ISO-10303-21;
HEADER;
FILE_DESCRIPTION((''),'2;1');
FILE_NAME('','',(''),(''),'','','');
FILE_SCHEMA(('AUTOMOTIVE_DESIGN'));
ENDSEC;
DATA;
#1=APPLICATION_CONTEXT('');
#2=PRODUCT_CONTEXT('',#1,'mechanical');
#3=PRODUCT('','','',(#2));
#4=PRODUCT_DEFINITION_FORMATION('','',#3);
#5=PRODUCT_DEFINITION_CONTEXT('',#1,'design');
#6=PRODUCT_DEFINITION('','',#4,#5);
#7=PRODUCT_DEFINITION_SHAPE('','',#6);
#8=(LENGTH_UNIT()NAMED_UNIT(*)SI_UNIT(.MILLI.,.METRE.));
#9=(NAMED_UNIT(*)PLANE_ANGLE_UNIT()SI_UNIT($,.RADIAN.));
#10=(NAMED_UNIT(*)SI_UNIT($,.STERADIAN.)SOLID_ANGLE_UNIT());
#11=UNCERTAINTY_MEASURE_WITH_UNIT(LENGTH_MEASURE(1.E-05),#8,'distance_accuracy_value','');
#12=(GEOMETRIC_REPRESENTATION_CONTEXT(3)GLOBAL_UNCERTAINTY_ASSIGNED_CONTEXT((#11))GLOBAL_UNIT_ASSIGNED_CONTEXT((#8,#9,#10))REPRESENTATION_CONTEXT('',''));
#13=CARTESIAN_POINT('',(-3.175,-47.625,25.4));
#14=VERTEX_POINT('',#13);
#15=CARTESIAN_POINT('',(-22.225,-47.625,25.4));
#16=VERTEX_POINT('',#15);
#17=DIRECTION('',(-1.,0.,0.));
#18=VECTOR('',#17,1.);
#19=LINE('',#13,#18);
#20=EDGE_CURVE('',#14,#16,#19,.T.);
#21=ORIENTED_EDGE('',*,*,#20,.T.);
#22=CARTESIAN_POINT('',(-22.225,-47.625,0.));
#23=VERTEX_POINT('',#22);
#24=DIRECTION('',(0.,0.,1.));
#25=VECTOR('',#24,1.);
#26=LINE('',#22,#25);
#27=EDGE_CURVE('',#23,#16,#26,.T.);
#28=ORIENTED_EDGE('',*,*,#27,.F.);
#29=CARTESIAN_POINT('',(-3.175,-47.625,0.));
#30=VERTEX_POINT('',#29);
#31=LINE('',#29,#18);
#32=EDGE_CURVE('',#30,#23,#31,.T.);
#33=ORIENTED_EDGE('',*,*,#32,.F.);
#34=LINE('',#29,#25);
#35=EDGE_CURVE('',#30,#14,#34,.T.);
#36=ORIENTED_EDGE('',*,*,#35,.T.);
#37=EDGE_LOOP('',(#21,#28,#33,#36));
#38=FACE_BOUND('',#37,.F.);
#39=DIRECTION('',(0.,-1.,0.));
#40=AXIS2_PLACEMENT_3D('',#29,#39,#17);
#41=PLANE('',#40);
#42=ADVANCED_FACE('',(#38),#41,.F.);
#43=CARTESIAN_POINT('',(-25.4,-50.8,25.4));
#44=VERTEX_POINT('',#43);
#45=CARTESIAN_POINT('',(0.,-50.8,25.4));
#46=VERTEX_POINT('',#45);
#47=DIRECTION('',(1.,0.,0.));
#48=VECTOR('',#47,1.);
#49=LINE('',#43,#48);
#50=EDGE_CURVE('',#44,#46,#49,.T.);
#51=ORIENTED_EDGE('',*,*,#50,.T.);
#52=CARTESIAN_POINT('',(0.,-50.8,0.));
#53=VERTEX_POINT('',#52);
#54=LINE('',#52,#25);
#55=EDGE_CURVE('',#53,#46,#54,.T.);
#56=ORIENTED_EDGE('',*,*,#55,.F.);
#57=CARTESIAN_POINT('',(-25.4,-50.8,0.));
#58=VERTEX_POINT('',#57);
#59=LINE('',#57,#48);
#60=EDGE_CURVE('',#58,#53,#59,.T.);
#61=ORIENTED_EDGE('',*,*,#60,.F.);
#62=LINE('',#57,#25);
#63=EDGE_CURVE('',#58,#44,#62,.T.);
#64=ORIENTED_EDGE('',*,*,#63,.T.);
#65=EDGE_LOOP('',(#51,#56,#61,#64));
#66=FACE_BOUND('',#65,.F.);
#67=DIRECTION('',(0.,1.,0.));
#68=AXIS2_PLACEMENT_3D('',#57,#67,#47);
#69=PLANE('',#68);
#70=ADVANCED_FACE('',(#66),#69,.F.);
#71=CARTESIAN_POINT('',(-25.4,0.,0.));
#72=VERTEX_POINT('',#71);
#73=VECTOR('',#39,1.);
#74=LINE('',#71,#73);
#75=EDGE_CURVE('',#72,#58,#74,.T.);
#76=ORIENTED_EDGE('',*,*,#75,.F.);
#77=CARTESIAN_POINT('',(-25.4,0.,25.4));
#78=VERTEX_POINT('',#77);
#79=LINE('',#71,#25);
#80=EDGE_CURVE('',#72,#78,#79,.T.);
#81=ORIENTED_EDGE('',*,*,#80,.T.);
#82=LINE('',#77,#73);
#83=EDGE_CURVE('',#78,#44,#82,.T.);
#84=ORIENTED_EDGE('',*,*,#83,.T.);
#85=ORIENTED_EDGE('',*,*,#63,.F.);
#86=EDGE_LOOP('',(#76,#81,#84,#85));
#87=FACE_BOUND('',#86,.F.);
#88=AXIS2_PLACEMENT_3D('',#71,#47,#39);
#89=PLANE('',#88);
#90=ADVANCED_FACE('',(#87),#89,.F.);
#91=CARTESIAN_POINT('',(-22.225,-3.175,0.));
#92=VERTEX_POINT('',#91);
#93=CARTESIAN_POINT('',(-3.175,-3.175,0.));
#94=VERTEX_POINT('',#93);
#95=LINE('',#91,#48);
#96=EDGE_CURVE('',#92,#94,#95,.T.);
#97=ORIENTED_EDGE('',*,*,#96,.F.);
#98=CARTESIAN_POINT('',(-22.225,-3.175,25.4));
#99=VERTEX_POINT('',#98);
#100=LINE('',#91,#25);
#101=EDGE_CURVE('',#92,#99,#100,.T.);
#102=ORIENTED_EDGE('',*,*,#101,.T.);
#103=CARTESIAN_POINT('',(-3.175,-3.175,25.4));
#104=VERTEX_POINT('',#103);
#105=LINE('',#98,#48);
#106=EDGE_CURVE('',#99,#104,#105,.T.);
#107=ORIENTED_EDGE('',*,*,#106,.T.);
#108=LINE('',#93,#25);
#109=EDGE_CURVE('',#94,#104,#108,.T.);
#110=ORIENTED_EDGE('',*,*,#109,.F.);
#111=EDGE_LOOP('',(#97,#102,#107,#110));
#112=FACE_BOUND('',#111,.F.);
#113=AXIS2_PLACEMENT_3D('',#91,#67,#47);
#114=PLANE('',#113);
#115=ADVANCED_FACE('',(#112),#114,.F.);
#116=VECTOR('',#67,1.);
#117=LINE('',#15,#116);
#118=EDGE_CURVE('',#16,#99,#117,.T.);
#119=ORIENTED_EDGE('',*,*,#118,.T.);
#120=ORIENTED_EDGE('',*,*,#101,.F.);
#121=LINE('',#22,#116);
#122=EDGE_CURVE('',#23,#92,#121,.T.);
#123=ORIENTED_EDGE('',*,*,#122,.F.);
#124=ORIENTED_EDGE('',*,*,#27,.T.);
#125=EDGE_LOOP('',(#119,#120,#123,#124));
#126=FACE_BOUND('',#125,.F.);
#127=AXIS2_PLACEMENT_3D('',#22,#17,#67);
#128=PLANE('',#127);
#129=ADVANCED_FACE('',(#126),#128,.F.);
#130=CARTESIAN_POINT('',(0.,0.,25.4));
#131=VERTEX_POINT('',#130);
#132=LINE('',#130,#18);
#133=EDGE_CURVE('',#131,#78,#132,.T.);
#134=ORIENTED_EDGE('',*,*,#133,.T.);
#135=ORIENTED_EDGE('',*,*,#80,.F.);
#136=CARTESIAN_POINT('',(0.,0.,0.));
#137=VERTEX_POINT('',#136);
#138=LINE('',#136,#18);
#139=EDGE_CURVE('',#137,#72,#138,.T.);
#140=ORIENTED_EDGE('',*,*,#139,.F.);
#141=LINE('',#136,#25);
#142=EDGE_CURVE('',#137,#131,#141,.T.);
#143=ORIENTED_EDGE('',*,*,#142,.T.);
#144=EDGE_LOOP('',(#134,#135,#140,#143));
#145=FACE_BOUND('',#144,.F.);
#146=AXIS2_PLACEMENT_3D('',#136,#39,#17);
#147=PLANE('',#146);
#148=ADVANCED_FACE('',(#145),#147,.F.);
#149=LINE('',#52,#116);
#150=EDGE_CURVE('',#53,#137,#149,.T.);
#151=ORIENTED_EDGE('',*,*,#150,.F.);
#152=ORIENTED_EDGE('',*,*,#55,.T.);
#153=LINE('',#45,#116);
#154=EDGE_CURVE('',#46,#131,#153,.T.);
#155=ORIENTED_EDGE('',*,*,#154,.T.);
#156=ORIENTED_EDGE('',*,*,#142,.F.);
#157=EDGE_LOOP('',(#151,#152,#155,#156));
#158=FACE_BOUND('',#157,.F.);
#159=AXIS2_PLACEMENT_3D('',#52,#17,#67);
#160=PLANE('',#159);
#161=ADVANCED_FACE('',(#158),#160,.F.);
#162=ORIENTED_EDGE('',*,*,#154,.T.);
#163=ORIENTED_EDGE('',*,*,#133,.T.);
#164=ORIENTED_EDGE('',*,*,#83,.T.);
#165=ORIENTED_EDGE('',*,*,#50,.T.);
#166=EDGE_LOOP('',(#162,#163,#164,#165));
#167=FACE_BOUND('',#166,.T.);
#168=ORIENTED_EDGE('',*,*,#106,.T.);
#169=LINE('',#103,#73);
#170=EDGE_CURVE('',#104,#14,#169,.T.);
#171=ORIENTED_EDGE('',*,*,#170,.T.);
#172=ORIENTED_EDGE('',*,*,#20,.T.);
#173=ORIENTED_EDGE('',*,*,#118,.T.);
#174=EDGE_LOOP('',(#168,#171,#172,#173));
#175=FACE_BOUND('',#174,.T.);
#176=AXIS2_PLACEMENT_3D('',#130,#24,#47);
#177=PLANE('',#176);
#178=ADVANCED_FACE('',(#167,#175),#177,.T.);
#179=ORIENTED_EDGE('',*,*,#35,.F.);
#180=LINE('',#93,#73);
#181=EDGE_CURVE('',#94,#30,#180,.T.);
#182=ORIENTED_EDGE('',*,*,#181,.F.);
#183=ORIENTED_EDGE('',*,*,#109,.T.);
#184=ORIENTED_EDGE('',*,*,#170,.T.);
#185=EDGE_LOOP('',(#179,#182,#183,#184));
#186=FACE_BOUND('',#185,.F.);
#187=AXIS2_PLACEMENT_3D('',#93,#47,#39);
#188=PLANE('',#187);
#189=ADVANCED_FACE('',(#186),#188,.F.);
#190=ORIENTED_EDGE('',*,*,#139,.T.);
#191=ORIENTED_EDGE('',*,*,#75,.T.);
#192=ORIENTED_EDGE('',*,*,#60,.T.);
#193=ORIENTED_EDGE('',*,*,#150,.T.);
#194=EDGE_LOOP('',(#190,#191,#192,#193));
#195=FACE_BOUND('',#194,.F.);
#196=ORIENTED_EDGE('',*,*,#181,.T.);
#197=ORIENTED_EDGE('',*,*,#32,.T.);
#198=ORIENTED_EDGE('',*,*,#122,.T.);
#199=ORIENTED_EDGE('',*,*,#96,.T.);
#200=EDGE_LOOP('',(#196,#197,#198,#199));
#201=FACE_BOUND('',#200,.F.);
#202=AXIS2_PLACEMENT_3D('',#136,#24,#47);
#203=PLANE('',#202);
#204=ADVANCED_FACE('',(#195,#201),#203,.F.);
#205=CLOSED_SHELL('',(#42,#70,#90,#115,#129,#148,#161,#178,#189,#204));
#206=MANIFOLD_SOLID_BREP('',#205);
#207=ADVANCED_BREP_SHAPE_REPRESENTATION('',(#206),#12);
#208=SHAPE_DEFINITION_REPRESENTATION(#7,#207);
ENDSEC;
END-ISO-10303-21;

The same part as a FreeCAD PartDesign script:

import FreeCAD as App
import Part
import Sketcher
from FreeCAD import Vector
Q = App.Units.Quantity

doc = App.newDocument("Part")
body = doc.addObject("PartDesign::Body", "Body")

# Sketch on XY plane
sketch1 = body.newObject("Sketcher::SketchObject", "Sketch")
sketch1.AttachmentSupport = (doc.getObject("XY_Plane"), [""])
sketch1.MapMode = "FlatFace"
sketch1.addGeometry(Part.LineSegment(Vector(0, -51, 0), Vector(0, 0, 0)), False)
sketch1.addGeometry(Part.LineSegment(Vector(0, 0, 0), Vector(-25, 0, 0)), False)
sketch1.addGeometry(Part.LineSegment(Vector(-25, 0, 0), Vector(-25, -51, 0)), False)
sketch1.addGeometry(Part.LineSegment(Vector(-25, -51, 0), Vector(0, -51, 0)), False)
sketch1.addGeometry(Part.LineSegment(Vector(-22, -48, 0), Vector(-22, -3, 0)), False)
sketch1.addGeometry(Part.LineSegment(Vector(-22, -3, 0), Vector(-3, -3, 0)), False)
sketch1.addGeometry(Part.LineSegment(Vector(-3, -3, 0), Vector(-3, -48, 0)), False)
sketch1.addGeometry(Part.LineSegment(Vector(-3, -48, 0), Vector(-22, -48, 0)), False)
sketch1.addConstraint(Sketcher.Constraint("Coincident", 0, 2, 1, 1))
sketch1.addConstraint(Sketcher.Constraint("Coincident", 1, 2, 2, 1))
sketch1.addConstraint(Sketcher.Constraint("Coincident", 2, 2, 3, 1))
sketch1.addConstraint(Sketcher.Constraint("Coincident", 3, 2, 0, 1))
sketch1.addConstraint(Sketcher.Constraint("Coincident", 4, 2, 5, 1))
sketch1.addConstraint(Sketcher.Constraint("Coincident", 5, 2, 6, 1))
sketch1.addConstraint(Sketcher.Constraint("Coincident", 6, 2, 7, 1))
sketch1.addConstraint(Sketcher.Constraint("Coincident", 7, 2, 4, 1))
sketch1.addConstraint(Sketcher.Constraint("Vertical", 0))
sketch1.addConstraint(Sketcher.Constraint("Horizontal", 1))
sketch1.addConstraint(Sketcher.Constraint("Vertical", 2))
sketch1.addConstraint(Sketcher.Constraint("Horizontal", 3))
sketch1.addConstraint(Sketcher.Constraint("Vertical", 4))
sketch1.addConstraint(Sketcher.Constraint("Horizontal", 5))
sketch1.addConstraint(Sketcher.Constraint("Vertical", 6))
sketch1.addConstraint(Sketcher.Constraint("Horizontal", 7))
sketch1.addConstraint(Sketcher.Constraint("Coincident", 0, 2, -1, 1))
sketch1.addConstraint(Sketcher.Constraint("DistanceX", 1, 2, 1, 1, Q("1 in")))
sketch1.addConstraint(Sketcher.Constraint("DistanceY", 0, 1, 0, 2, Q("2 in")))
sketch1.addConstraint(Sketcher.Constraint("DistanceY", 4, 2, -1, 1, Q("0.125 in")))
sketch1.addConstraint(Sketcher.Constraint("DistanceX", 5, 2, -1, 1, Q("0.125 in")))
sketch1.addConstraint(Sketcher.Constraint("DistanceX", 1, 2, 4, 2, Q("0.125 in")))
sketch1.addConstraint(Sketcher.Constraint("DistanceY", 3, 2, 6, 2, Q("0.125 in")))
pad1 = body.newObject("PartDesign::Pad", "Pad")
pad1.Profile = sketch1
pad1.Length = Q("1 in")

doc.recompute()
